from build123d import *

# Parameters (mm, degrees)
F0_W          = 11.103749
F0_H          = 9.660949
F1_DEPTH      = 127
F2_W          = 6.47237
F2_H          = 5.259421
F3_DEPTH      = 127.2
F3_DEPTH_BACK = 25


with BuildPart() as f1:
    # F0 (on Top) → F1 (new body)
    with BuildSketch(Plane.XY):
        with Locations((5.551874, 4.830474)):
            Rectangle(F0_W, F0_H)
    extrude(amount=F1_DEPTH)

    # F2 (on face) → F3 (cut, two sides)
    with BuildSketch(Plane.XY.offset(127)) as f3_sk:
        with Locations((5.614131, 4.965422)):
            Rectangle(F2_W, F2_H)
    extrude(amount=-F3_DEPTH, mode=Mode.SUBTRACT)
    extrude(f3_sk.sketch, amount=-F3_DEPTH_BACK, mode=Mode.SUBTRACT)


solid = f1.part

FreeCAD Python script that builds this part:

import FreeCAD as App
import Part
import Sketcher
from FreeCAD import Vector

doc = App.newDocument("Part")
body = doc.addObject("PartDesign::Body", "Body")

# Sketch on XY plane
sketch1 = body.newObject("Sketcher::SketchObject", "Sketch")
sketch1.AttachmentSupport = (doc.getObject("XY_Plane"), [""])
sketch1.MapMode = "FlatFace"
sketch1.addGeometry([
    Part.LineSegment(Vector(0, 9.660948, 0), Vector(0, 0, 0)),
    Part.LineSegment(Vector(0, 0, 0), Vector(11.103749, 0, 0)),
    Part.LineSegment(Vector(11.103749, 0, 0), Vector(11.103749, 9.660948, 0)),
    Part.LineSegment(Vector(11.103749, 9.660948, 0), Vector(0, 9.660948, 0)),
], False)
sketch1.addConstraint([
    Sketcher.Constraint("Coincident", 0, 2, 1, 1),
    Sketcher.Constraint("Coincident", 1, 2, 2, 1),
    Sketcher.Constraint("Coincident", 2, 2, 3, 1),
    Sketcher.Constraint("Coincident", 3, 2, 0, 1),
    Sketcher.Constraint("Vertical", 0),
    Sketcher.Constraint("Horizontal", 1),
    Sketcher.Constraint("Vertical", 2),
    Sketcher.Constraint("Horizontal", 3),
    Sketcher.Constraint("Coincident", 0, 2, -1, 1),
    Sketcher.Constraint("DistanceX", 1, 1, 1, 2, 11.103749),
    Sketcher.Constraint("DistanceY", 0, 2, 0, 1, 9.660949),
])
pad1 = body.newObject("PartDesign::Pad", "Pad")
pad1.Profile = sketch1
pad1.Length = 127

# Sketch on XY plane
sketch2 = body.newObject("Sketcher::SketchObject", "Sketch001")
sketch2.AttachmentSupport = (doc.getObject("XY_Plane"), [""])
sketch2.MapMode = "FlatFace"
sketch2.AttachmentOffset = App.Placement(Vector(0, 0, 127), App.Rotation())
sketch2.addGeometry([
    Part.LineSegment(Vector(2.377946, 7.595133, 0), Vector(2.377946, 2.335711, 0)),
    Part.LineSegment(Vector(2.377946, 2.335711, 0), Vector(8.850316, 2.335711, 0)),
    Part.LineSegment(Vector(8.850316, 2.335711, 0), Vector(8.850316, 7.595133, 0)),
    Part.LineSegment(Vector(8.850316, 7.595133, 0), Vector(2.377946, 7.595133, 0)),
], False)
sketch2.addConstraint([
    Sketcher.Constraint("Coincident", 0, 2, 1, 1),
    Sketcher.Constraint("Coincident", 1, 2, 2, 1),
    Sketcher.Constraint("Coincident", 2, 2, 3, 1),
    Sketcher.Constraint("Coincident", 3, 2, 0, 1),
    Sketcher.Constraint("Vertical", 0),
    Sketcher.Constraint("Horizontal", 1),
    Sketcher.Constraint("Vertical", 2),
    Sketcher.Constraint("Horizontal", 3),
    Sketcher.Constraint("DistanceX", 1, 1, 1, 2, 6.47237),
    Sketcher.Constraint("DistanceY", 0, 2, 0, 1, 5.259421),
    Sketcher.Constraint("DistanceY", -1, 1, 0, 2, 2.335711),
    Sketcher.Constraint("DistanceX", -1, 1, 0, 2, 2.377946),
])
pocket1 = body.newObject("PartDesign::Pocket", "Pocket")
pocket1.Profile = sketch2
pocket1.Length = 127.2
pocket2 = body.newObject("PartDesign::Pocket", "Pocket001")
pocket2.Profile = sketch2
pocket2.Length = 25

doc.recompute()
